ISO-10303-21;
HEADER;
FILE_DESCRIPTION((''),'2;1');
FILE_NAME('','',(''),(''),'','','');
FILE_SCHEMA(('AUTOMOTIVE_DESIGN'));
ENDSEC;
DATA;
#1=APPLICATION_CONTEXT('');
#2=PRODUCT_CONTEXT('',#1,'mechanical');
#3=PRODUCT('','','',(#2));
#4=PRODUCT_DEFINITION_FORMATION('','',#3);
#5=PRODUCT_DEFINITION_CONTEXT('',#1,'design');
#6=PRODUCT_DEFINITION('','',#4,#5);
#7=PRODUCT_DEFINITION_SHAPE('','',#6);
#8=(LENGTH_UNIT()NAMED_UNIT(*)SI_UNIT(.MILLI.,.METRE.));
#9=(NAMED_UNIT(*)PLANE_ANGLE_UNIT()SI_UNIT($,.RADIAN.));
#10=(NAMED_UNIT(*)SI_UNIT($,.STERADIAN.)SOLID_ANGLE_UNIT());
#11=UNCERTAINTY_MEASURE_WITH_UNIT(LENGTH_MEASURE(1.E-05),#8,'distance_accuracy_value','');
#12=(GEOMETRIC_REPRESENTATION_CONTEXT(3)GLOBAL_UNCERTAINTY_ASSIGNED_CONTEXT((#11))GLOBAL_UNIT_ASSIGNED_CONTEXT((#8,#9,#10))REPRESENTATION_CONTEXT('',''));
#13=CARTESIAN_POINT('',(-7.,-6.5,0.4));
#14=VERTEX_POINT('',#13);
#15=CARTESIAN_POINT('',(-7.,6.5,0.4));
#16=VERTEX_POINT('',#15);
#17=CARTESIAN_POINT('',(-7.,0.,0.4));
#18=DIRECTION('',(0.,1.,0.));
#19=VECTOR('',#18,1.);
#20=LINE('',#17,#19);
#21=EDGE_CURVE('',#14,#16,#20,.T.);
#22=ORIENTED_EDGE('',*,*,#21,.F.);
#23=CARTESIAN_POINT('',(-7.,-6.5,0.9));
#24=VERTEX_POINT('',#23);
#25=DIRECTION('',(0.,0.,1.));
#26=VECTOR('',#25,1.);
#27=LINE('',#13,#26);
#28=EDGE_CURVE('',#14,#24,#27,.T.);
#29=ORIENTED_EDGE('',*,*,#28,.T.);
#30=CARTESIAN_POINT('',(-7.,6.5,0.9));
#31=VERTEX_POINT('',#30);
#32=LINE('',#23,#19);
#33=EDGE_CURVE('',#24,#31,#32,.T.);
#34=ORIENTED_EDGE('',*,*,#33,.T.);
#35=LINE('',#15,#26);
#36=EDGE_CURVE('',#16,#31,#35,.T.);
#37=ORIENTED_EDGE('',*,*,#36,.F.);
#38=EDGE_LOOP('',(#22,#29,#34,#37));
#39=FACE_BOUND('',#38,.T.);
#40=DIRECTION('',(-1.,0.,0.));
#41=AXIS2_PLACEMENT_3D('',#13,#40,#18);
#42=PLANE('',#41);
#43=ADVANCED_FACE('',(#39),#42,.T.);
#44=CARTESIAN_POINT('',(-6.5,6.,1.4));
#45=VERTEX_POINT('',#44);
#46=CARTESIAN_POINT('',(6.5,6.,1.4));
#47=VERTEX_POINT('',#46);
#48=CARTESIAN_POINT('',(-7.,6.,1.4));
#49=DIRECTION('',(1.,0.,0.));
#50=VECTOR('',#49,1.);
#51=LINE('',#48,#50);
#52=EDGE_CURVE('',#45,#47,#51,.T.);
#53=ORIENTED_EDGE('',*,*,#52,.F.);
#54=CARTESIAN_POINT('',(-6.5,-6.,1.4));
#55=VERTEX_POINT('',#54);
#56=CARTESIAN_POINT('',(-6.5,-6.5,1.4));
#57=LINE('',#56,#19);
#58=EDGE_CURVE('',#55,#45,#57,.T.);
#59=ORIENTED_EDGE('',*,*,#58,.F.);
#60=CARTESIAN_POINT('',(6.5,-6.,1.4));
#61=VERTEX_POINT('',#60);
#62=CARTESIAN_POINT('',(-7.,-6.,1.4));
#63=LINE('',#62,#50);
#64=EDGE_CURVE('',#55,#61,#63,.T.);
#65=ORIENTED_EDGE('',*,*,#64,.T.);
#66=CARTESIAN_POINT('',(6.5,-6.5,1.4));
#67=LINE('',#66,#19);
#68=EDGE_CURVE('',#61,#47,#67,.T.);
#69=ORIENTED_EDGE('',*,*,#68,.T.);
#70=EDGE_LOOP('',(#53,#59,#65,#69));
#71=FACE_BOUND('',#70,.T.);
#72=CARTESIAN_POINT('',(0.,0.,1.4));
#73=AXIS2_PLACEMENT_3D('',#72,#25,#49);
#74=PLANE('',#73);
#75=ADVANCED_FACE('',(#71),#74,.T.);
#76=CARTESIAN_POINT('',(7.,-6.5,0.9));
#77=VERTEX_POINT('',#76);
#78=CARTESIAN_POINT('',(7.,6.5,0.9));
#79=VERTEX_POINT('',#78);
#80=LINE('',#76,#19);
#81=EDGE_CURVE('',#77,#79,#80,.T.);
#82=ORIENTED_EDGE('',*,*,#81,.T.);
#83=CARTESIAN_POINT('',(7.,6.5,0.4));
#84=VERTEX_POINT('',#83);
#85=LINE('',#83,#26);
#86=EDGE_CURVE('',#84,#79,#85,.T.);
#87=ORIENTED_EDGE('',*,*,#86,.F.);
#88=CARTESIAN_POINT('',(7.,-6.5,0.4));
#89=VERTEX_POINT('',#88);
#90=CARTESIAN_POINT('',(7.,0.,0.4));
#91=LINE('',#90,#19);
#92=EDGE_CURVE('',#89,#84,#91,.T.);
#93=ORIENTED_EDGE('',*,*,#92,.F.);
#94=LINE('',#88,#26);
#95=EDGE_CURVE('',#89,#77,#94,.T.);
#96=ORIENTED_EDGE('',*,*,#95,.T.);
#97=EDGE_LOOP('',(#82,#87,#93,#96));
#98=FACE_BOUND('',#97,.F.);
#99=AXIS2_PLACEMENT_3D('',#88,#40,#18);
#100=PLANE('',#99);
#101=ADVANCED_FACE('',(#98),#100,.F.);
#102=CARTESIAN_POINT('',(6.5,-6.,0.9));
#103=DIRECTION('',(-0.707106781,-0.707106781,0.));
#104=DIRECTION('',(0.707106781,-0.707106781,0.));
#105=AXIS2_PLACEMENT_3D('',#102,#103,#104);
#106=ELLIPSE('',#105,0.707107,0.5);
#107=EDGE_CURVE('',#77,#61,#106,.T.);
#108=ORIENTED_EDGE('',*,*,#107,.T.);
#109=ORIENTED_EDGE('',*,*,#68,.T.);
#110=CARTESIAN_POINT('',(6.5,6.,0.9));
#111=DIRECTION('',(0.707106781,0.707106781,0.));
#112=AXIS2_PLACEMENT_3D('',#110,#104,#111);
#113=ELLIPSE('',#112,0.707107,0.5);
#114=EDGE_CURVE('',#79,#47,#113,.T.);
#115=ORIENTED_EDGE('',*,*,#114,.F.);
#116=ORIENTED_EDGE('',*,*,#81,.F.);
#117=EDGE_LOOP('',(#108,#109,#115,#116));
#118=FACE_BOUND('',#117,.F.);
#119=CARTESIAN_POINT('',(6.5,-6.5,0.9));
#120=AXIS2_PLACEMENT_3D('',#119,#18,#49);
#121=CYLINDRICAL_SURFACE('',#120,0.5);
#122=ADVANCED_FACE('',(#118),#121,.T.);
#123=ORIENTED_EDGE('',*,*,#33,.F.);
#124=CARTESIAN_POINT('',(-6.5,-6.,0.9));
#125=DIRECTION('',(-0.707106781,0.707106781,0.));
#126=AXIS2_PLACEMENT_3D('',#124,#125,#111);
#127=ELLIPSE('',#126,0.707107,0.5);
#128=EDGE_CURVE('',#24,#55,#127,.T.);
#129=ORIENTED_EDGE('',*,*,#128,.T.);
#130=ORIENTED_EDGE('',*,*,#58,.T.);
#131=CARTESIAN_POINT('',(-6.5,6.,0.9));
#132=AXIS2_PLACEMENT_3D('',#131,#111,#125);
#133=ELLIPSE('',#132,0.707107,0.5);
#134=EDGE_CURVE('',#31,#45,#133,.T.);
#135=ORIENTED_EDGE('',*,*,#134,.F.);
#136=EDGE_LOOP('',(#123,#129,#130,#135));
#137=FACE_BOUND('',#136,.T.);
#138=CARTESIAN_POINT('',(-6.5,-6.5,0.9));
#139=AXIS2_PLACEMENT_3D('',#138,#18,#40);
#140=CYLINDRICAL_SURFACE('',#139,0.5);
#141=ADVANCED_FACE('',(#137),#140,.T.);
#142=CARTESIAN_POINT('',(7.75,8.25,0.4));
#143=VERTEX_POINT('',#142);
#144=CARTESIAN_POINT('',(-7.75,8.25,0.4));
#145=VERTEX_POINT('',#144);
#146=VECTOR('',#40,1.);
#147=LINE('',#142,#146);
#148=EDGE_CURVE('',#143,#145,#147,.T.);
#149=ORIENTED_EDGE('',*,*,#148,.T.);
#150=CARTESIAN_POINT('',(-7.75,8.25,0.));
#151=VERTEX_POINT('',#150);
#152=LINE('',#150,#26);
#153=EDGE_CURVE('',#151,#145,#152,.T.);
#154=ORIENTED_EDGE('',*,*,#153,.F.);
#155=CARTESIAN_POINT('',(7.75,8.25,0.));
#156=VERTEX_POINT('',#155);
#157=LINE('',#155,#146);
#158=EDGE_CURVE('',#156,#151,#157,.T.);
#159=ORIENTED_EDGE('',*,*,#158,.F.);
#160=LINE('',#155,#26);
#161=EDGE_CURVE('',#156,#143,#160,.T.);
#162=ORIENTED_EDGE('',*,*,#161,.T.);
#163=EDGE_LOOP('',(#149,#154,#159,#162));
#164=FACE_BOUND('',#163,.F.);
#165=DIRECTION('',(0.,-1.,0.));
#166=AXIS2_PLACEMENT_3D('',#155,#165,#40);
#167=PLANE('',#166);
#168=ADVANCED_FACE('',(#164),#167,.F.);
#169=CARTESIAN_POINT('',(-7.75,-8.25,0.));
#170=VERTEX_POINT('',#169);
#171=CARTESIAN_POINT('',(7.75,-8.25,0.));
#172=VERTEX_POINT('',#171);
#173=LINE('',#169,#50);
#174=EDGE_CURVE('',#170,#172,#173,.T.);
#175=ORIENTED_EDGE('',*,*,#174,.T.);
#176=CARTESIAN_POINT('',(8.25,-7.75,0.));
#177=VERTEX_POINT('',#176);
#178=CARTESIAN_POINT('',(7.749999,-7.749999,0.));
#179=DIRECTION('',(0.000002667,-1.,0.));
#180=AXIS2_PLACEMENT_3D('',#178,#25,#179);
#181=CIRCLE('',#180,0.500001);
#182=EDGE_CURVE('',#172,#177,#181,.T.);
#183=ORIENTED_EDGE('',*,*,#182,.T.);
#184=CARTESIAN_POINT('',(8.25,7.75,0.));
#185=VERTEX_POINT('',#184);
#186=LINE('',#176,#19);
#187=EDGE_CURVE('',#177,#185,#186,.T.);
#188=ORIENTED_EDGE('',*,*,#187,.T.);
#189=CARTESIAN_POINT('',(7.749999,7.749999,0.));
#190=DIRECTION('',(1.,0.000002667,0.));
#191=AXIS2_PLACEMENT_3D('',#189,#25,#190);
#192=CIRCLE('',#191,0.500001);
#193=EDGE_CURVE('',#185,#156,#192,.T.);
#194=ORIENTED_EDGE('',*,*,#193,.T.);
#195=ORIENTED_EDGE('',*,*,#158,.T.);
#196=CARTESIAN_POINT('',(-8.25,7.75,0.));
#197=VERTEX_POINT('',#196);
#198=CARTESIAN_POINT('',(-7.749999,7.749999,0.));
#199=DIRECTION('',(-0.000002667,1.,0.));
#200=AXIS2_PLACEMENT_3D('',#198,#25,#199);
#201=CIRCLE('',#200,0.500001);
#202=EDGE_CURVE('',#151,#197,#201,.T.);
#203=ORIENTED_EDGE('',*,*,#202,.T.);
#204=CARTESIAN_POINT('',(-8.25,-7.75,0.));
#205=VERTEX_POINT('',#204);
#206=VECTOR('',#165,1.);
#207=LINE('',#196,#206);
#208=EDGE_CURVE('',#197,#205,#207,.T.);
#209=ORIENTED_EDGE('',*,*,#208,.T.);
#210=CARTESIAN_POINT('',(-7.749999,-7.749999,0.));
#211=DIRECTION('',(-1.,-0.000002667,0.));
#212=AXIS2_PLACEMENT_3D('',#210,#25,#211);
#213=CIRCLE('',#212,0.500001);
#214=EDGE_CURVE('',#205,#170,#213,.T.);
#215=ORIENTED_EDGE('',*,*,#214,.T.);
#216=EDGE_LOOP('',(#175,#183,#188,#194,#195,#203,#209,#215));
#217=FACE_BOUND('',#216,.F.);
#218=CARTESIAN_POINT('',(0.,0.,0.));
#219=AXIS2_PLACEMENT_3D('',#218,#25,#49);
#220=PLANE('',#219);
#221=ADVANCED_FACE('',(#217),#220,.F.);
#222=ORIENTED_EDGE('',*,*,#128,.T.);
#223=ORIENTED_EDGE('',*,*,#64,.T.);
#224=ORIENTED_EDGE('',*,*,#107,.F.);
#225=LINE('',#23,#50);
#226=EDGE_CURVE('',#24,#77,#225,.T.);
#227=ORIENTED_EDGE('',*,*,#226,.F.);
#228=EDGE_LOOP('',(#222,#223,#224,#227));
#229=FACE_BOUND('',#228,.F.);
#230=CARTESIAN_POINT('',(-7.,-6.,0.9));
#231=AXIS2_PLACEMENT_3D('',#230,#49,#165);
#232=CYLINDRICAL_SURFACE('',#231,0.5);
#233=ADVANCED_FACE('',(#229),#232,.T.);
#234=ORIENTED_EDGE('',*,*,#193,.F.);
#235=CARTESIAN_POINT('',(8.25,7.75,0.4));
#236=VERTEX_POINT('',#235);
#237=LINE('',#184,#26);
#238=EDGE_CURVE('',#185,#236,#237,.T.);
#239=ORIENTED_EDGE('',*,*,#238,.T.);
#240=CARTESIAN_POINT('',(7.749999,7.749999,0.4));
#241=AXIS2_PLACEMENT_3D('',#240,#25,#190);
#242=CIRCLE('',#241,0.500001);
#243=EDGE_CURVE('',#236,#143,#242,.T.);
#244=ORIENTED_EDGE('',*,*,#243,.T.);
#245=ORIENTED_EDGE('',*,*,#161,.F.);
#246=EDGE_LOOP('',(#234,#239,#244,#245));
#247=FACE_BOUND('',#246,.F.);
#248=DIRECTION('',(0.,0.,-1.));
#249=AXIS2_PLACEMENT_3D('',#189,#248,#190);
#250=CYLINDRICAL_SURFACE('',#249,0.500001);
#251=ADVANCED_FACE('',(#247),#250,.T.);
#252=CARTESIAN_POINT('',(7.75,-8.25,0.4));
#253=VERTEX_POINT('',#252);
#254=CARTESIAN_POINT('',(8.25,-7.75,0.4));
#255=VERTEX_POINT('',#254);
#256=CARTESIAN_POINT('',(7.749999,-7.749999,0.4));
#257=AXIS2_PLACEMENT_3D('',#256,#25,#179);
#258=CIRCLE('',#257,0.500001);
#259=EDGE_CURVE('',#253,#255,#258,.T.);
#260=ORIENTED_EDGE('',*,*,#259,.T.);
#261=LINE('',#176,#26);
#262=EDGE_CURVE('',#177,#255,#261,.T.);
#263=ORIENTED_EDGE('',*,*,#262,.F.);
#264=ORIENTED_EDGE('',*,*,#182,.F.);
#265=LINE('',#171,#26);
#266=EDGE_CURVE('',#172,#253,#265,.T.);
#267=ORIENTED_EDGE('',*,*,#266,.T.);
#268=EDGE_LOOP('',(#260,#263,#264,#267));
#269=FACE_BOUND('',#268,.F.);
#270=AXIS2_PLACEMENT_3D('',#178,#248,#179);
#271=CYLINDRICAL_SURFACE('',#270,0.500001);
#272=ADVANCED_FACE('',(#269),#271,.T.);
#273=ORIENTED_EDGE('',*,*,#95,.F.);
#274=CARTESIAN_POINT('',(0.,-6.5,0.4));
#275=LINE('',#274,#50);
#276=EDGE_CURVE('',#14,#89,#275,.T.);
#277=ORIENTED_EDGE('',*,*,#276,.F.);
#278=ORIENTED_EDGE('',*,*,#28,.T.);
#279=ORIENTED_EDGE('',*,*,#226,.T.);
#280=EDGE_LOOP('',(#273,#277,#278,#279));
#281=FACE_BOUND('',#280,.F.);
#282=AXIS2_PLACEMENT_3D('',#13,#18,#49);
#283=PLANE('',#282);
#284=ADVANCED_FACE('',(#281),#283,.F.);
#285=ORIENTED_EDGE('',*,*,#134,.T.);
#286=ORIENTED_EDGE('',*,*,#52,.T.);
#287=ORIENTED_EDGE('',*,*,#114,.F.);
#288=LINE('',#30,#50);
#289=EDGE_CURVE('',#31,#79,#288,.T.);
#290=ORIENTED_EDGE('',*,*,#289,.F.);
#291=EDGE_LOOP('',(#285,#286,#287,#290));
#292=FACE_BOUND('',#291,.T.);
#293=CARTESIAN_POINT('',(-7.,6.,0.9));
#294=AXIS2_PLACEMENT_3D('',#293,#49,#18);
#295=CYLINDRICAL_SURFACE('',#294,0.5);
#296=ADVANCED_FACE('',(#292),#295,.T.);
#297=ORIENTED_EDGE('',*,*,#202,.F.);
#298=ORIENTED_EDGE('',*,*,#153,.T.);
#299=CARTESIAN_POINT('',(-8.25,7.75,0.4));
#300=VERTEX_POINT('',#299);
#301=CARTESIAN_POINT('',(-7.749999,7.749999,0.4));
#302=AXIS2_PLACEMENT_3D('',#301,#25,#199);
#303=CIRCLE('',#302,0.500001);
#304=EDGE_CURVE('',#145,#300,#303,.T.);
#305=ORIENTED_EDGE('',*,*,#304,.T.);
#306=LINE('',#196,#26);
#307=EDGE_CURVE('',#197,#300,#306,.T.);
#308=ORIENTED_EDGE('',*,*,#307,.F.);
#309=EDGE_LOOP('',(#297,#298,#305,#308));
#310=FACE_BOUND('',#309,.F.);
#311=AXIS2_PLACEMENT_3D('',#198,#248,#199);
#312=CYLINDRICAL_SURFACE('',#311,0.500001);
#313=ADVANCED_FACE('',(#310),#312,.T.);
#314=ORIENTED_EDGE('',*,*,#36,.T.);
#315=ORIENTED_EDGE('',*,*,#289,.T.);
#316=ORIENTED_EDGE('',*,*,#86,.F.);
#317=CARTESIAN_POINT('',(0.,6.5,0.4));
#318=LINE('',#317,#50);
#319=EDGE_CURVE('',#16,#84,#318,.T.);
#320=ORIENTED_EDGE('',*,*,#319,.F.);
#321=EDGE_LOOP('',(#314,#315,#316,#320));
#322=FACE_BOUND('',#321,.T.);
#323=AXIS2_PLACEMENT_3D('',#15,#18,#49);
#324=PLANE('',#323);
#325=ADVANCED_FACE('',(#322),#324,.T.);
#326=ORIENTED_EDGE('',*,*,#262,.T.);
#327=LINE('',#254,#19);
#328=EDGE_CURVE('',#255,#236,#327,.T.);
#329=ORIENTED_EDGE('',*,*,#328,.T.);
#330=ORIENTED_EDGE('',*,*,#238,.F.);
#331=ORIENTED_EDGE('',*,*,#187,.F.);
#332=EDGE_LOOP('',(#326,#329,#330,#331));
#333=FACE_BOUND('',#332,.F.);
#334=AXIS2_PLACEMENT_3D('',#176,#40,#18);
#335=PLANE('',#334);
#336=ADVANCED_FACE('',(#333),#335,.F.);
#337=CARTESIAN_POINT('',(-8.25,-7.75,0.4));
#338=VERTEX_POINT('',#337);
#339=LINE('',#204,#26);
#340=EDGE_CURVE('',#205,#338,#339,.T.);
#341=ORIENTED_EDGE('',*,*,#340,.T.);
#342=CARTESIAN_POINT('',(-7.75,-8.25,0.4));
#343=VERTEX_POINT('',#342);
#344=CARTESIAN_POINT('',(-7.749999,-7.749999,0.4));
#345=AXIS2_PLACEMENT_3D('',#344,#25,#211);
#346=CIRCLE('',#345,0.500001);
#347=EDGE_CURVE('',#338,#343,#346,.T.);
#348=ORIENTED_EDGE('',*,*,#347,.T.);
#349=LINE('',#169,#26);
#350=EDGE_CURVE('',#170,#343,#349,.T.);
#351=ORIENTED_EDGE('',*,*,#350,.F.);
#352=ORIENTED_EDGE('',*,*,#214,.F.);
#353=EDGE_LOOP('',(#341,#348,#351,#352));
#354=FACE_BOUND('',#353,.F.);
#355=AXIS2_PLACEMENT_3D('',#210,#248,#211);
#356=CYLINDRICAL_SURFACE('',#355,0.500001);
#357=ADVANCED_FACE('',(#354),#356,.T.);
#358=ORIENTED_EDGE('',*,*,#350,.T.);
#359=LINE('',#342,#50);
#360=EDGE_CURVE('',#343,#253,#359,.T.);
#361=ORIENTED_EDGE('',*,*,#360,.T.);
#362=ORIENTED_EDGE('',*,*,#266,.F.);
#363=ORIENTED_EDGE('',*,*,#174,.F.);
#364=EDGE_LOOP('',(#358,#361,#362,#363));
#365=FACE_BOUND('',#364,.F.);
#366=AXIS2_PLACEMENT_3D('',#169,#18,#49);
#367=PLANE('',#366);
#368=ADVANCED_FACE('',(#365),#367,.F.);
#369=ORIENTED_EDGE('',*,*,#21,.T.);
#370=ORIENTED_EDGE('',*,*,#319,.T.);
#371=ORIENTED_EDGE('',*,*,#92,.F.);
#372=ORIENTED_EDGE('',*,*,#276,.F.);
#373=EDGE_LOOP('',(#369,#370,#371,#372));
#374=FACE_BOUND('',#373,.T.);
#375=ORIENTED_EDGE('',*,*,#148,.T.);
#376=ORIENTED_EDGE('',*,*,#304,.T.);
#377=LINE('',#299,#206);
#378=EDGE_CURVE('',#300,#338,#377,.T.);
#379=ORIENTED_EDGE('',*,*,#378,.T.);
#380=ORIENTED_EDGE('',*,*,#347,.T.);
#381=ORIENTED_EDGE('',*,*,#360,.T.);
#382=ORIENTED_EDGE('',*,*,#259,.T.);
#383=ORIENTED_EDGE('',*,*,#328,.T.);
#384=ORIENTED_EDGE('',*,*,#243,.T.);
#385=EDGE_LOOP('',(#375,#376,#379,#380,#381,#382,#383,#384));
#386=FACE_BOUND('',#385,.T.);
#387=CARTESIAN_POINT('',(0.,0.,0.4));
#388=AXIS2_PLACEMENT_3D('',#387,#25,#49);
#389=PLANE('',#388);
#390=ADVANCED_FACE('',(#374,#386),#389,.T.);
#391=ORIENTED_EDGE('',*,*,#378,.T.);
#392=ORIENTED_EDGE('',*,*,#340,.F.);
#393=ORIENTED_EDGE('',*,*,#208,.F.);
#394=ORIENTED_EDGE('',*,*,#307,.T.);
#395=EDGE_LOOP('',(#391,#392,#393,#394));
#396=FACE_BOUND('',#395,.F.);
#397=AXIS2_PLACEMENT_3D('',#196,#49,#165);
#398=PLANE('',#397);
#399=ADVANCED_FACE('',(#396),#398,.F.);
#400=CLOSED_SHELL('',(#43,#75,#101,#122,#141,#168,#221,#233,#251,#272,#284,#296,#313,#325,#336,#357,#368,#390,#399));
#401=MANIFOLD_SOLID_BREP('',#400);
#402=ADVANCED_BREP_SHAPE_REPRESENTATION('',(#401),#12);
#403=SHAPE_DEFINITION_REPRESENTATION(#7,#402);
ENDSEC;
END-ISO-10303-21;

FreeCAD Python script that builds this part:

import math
import FreeCAD as App
import Part
import Sketcher
Q = App.Units.Quantity


def edges_at(feature, points):
    """Names of the edges that pass closest to the given points."""
    edges = feature.Shape.Edges
    near = lambda p: min(range(len(edges)), key=lambda i: edges[i].distToShape(Part.Vertex(*p))[0])
    return sorted({f"Edge{near(p) + 1}" for p in points})


def add_polygon(sketch, points):
    """Adds a closed chain of lines whose ends are joined by coincident constraints."""
    first, n = sketch.GeometryCount, len(points)
    for a, b in zip(points, points[1:] + points[:1]):
        sketch.addGeometry(Part.LineSegment(App.Vector(*a, 0), App.Vector(*b, 0)), False)
    for i in range(n):
        sketch.addConstraint(Sketcher.Constraint("Coincident", first + i, 2, first + (i + 1) % n, 1))

doc = App.newDocument("Part")
params = doc.addObject("Spreadsheet::Sheet", "Params")
for row, (alias, value) in enumerate([
    ("sketch1_radius", "0.500001 mm"),
    ("sketch1_width", "15.5 mm"),
    ("pad1_length", "0.4 mm"),
    ("sketch2_width", "14 mm"),
    ("sketch2_height", "13 mm"),
    ("pad2_length", "1 mm"),
    ("fillet_radius", "0.5 mm"),
], start=1):
    params.set(f"A{row}", alias)
    params.set(f"B{row}", "=" + value)
    params.setAlias(f"B{row}", alias)

body = doc.addObject("PartDesign::Body", "Body")

# Sketch on XY plane
sketch1 = doc.addObject("Sketcher::SketchObject", "Sketch")
body.addObject(sketch1)
sketch1.AttachmentSupport = (doc.XY_Plane, [""])
sketch1.MapMode = "FlatFace"
sketch1.addGeometry(Part.LineSegment(App.Vector(-8.25, 7.75, 0), App.Vector(-8.25, -7.75, 0)), False)
sketch1.addGeometry(Part.ArcOfCircle(Part.Circle(App.Vector(-7.749999, -7.749999, 0), App.Vector(0, 0, 1), 0.500001), math.radians(-179.999847), math.radians(-90.000153)), False)
sketch1.addGeometry(Part.LineSegment(App.Vector(-7.75, -8.25, 0), App.Vector(7.75, -8.25, 0)), False)
sketch1.addGeometry(Part.ArcOfCircle(Part.Circle(App.Vector(7.749999, -7.749999, 0), App.Vector(0, 0, 1), 0.500001), math.radians(-89.999847), math.radians(-0.000153)), False)
sketch1.addGeometry(Part.LineSegment(App.Vector(8.25, -7.75, 0), App.Vector(8.25, 7.75, 0)), False)
sketch1.addGeometry(Part.ArcOfCircle(Part.Circle(App.Vector(7.749999, 7.749999, 0), App.Vector(0, 0, 1), 0.500001), math.radians(0.000153), math.radians(89.999847)), False)
sketch1.addGeometry(Part.LineSegment(App.Vector(7.75, 8.25, 0), App.Vector(-7.75, 8.25, 0)), False)
sketch1.addGeometry(Part.ArcOfCircle(Part.Circle(App.Vector(-7.749999, 7.749999, 0), App.Vector(0, 0, 1), 0.500001), math.radians(90.000153), math.radians(179.999847)), False)
sketch1.addConstraint(Sketcher.Constraint("Coincident", 0, 2, 1, 1))
sketch1.addConstraint(Sketcher.Constraint("Coincident", 1, 2, 2, 1))
sketch1.addConstraint(Sketcher.Constraint("Coincident", 2, 2, 3, 1))
sketch1.addConstraint(Sketcher.Constraint("Coincident", 3, 2, 4, 1))
sketch1.addConstraint(Sketcher.Constraint("Coincident", 4, 2, 5, 1))
sketch1.addConstraint(Sketcher.Constraint("Coincident", 5, 2, 6, 1))
sketch1.addConstraint(Sketcher.Constraint("Coincident", 6, 2, 7, 1))
sketch1.addConstraint(Sketcher.Constraint("Coincident", 7, 2, 0, 1))
sketch1.addConstraint(Sketcher.Constraint("Vertical", 0))
sketch1.addConstraint(Sketcher.Constraint("Horizontal", 2))
sketch1.addConstraint(Sketcher.Constraint("Vertical", 4))
sketch1.addConstraint(Sketcher.Constraint("Horizontal", 6))
sketch1.addConstraint(Sketcher.Constraint("Equal", 1, 3))
sketch1.addConstraint(Sketcher.Constraint("Equal", 3, 5))
sketch1.addConstraint(Sketcher.Constraint("Equal", 5, 7))
sketch1.addConstraint(Sketcher.Constraint("Symmetric", 1, 3, 5, 3, -1, 1))
sketch1.addConstraint(Sketcher.Constraint("Horizontal", 3, 3, 0, 2))
sketch1.addConstraint(Sketcher.Constraint("Horizontal", 0, 2, 3, 2))
sketch1.addConstraint(Sketcher.Constraint("Horizontal", 7, 3, 4, 2))
sketch1.addConstraint(Sketcher.Constraint("Horizontal", 4, 2, 7, 2))
sketch1.addConstraint(Sketcher.Constraint("Vertical", 7, 3, 1, 2))
sketch1.addConstraint(Sketcher.Constraint("Vertical", 5, 3, 2, 2))
sketch1.addConstraint(Sketcher.Constraint("Vertical", 2, 2, 5, 2))
sketch1.addConstraint(Sketcher.Constraint("Vertical", 1, 2, 6, 2))
sketch1.addConstraint(Sketcher.Constraint("Equal", 6, 0))
sketch1.addConstraint(Sketcher.Constraint("Radius", 1, Q("0.500001 mm")))
sketch1.addConstraint(Sketcher.Constraint("DistanceX", 2, 1, 2, 2, Q("15.5 mm")))
sketch1.setExpression("Constraints[25]", "Params.sketch1_radius")
sketch1.setExpression("Constraints[26]", "Params.sketch1_width")
pad1 = doc.addObject("PartDesign::Pad", "Pad")
body.addObject(pad1)
pad1.Profile = sketch1
pad1.setExpression("Length", "Params.pad1_length")

# Sketch on XY plane
sketch2 = doc.addObject("Sketcher::SketchObject", "Sketch001")
body.addObject(sketch2)
sketch2.AttachmentSupport = (doc.XY_Plane, [""])
sketch2.MapMode = "FlatFace"
sketch2.AttachmentOffset = App.Placement(App.Vector(0, 0, 0.4), App.Rotation())
add_polygon(sketch2, [(-7, 6.5), (-7, -6.5), (7, -6.5), (7, 6.5)])  # lines 0-3
sketch2.addConstraint(Sketcher.Constraint("Vertical", 0))
sketch2.addConstraint(Sketcher.Constraint("Horizontal", 1))
sketch2.addConstraint(Sketcher.Constraint("Vertical", 2))
sketch2.addConstraint(Sketcher.Constraint("Horizontal", 3))
sketch2.addConstraint(Sketcher.Constraint("Symmetric", 0, 2, 2, 2, -1, 1))
sketch2.addConstraint(Sketcher.Constraint("DistanceX", 1, 1, 1, 2, Q("14 mm")))
sketch2.addConstraint(Sketcher.Constraint("DistanceY", 0, 2, 0, 1, Q("13 mm")))
sketch2.setExpression("Constraints[9]", "Params.sketch2_width")
sketch2.setExpression("Constraints[10]", "Params.sketch2_height")
pad2 = doc.addObject("PartDesign::Pad", "Pad001")
body.addObject(pad2)
pad2.Profile = sketch2
pad2.setExpression("Length", "Params.pad2_length")
doc.recompute()

fillet = doc.addObject("PartDesign::Fillet", "Fillet")
body.addObject(fillet)
fillet.Base = (pad2, edges_at(pad2, [
    (-7, 0, 1.4),
    (0, -6.5, 1.4),
    (7, 0, 1.4),
    (0, 6.5, 1.4),
]))
fillet.setExpression("Radius", "Params.fillet_radius")

doc.recompute()
